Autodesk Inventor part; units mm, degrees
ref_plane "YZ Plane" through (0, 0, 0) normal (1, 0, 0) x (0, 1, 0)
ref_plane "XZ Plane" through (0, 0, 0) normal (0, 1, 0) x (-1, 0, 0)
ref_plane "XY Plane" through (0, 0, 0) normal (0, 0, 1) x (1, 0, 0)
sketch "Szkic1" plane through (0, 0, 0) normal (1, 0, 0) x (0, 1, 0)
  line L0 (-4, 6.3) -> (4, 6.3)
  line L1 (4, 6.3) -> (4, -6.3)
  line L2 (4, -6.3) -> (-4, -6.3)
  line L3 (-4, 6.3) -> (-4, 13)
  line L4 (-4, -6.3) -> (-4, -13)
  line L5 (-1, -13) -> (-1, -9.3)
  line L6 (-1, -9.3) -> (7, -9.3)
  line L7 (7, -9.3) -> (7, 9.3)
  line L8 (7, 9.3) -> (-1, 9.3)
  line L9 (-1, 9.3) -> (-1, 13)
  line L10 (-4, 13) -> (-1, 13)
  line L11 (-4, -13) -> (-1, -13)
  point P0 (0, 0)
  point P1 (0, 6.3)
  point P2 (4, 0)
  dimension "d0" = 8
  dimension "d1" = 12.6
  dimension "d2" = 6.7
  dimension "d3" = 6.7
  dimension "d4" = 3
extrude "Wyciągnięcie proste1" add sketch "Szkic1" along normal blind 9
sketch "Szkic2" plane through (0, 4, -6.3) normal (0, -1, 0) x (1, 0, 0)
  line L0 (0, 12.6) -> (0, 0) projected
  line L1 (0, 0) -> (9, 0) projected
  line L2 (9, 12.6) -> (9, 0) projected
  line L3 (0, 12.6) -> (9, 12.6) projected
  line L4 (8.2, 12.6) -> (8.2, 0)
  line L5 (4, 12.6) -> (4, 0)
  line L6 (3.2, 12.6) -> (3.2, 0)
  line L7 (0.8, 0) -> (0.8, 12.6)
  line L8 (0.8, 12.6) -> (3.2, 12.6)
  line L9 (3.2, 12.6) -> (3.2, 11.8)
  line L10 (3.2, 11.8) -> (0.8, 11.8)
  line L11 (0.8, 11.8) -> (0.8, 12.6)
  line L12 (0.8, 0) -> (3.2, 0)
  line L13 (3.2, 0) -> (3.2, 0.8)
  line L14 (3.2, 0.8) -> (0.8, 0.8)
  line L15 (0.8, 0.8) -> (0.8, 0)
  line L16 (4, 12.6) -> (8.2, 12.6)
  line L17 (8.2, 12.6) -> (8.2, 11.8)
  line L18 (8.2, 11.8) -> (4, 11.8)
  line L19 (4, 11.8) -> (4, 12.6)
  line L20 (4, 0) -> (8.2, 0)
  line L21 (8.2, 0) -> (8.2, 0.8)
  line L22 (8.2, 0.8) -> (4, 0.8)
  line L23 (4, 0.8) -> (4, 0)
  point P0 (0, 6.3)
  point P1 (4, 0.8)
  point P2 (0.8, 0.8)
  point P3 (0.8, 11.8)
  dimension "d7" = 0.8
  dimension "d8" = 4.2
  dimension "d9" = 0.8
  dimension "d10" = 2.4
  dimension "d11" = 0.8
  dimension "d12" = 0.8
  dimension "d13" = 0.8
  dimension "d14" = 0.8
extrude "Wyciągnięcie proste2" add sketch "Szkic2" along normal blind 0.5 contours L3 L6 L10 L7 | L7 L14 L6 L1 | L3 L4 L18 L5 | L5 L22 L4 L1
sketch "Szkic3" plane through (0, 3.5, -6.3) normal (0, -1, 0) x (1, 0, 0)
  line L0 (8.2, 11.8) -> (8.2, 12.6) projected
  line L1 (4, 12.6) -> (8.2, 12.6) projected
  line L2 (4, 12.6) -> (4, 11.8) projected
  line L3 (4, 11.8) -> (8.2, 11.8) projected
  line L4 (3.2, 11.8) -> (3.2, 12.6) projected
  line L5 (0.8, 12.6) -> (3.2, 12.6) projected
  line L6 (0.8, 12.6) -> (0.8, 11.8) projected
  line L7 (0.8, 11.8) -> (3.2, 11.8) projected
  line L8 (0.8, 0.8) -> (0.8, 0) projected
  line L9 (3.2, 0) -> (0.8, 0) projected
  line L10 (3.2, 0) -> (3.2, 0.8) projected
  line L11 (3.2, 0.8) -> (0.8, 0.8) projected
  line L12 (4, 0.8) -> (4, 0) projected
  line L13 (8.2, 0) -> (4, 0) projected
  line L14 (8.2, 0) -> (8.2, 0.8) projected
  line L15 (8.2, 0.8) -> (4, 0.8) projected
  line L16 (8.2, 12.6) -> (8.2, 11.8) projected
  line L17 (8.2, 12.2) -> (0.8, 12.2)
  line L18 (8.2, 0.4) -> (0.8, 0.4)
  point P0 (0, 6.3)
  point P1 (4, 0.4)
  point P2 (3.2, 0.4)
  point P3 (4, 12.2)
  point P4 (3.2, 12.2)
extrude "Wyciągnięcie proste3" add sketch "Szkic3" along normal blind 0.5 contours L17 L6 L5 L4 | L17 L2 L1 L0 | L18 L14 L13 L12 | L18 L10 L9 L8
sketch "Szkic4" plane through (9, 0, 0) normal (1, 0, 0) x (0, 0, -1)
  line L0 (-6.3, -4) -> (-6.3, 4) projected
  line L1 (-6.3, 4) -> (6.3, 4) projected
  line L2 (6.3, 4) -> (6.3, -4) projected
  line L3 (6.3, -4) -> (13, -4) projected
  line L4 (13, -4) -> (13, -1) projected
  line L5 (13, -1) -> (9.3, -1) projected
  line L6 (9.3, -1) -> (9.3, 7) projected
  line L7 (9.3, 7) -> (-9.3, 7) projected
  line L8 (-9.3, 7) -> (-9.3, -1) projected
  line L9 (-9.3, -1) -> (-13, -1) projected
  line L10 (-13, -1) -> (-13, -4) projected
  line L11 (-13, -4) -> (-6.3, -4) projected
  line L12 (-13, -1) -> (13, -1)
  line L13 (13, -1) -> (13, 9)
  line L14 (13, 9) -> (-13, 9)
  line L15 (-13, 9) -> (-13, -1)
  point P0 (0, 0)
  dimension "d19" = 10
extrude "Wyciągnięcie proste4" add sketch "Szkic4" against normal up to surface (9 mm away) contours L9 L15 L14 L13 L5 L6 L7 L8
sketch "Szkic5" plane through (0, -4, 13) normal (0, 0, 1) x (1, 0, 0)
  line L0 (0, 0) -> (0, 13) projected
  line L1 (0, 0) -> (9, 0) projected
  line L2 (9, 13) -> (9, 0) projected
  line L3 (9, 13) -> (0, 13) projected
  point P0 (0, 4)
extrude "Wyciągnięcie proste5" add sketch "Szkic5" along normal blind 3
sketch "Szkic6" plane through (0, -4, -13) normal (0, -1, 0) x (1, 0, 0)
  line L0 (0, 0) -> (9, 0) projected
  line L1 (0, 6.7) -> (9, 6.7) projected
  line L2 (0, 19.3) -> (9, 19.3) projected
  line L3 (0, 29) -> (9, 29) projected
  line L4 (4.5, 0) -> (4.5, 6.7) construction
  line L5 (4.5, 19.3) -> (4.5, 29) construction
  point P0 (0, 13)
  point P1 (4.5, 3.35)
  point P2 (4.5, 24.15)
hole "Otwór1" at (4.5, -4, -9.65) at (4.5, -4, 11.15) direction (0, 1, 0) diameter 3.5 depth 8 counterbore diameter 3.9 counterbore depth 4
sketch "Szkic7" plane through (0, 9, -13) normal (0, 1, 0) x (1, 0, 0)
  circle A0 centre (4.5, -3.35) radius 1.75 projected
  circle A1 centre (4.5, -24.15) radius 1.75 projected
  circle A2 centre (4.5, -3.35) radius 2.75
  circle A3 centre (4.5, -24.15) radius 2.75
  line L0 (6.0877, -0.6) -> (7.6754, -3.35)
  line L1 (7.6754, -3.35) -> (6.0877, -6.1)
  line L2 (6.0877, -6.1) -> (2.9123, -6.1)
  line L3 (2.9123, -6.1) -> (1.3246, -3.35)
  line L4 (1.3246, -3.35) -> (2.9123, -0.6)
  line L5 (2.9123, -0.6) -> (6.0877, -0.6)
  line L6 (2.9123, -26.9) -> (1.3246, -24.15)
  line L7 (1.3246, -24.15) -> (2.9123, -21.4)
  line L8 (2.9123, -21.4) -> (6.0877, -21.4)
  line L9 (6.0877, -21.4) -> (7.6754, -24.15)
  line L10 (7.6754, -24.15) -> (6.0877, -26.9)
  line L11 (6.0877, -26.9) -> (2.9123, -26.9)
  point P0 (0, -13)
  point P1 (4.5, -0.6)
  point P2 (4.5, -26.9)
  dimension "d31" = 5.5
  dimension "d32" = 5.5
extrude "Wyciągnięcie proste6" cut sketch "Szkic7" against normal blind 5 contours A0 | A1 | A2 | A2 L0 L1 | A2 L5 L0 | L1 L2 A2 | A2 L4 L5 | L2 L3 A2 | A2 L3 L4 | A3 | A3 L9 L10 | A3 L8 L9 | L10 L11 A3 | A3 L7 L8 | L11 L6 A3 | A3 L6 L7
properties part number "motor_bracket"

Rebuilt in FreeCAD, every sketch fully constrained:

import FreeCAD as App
import Part
import Sketcher

V = App.Vector
Q = App.Units.Quantity

doc = App.newDocument("Part")
params = doc.addObject("Spreadsheet::Sheet", "Params")
for row, (alias, value) in enumerate([
    ("sketch1_width", "8 mm"),
    ("sketch1_width2", "3 mm"),
    ("sketch1_height", "6.7 mm"),
    ("sketch1_height2", "12.6 mm"),
    ("pad1_length", "9 mm"),
    ("sketch2_width", "2.4 mm"),
    ("sketch2_width2", "4.2 mm"),
    ("sketch2_height", "0.8 mm"),
    ("pad2_length", "0.5 mm"),
    ("sketch3_width", "2.4 mm"),
    ("sketch3_width2", "4.2 mm"),
    ("sketch3_height", "0.4 mm"),
    ("pad3_length", "0.5 mm"),
    ("sketch4_width", "10 mm"),
    ("sketch4_width2", "8 mm"),
    ("sketch4_height", "26 mm"),
    ("sketch4_height2", "3.7 mm"),
    ("pad4_length", "9 mm"),
    ("sketch5_width", "9 mm"),
    ("sketch5_height", "13 mm"),
    ("pad5_length", "3 mm"),
    ("sketch6_diameter", "3.5 mm"),
    ("hole_diameter", "3.5 mm"),
    ("hole_depth", "8 mm"),
    ("hole_cbore_diameter", "3.9 mm"),
    ("hole_cbore_depth", "4 mm"),
    ("pocket1_length", "5 mm"),
], start=1):
    params.set(f"A{row}", alias)
    params.set(f"B{row}", "=" + value)
    params.setAlias(f"B{row}", alias)

body = doc.addObject("PartDesign::Body", "Body")

sketch1 = doc.addObject("Sketcher::SketchObject", "Sketch")
body.addObject(sketch1)
sketch1.AttachmentSupport = (doc.YZ_Plane, [""])
sketch1.MapMode = "FlatFace"
sketch1.addGeometry([
    Part.LineSegment(V(-4, 13, 0), V(-4, 6.3, 0)),
    Part.LineSegment(V(-4, 6.3, 0), V(4, 6.3, 0)),
    Part.LineSegment(V(4, 6.3, 0), V(4, -6.3, 0)),
    Part.LineSegment(V(4, -6.3, 0), V(-4, -6.3, 0)),
    Part.LineSegment(V(-4, -6.3, 0), V(-4, -13, 0)),
    Part.LineSegment(V(-4, -13, 0), V(-1, -13, 0)),
    Part.LineSegment(V(-1, -13, 0), V(-1, -9.3, 0)),
    Part.LineSegment(V(-1, -9.3, 0), V(7, -9.3, 0)),
    Part.LineSegment(V(7, -9.3, 0), V(7, 9.3, 0)),
    Part.LineSegment(V(7, 9.3, 0), V(-1, 9.3, 0)),
    Part.LineSegment(V(-1, 9.3, 0), V(-1, 13, 0)),
    Part.LineSegment(V(-1, 13, 0), V(-4, 13, 0)),
], False)
sketch1.addConstraint([
    Sketcher.Constraint("Coincident", 0, 2, 1, 1),
    Sketcher.Constraint("Coincident", 1, 2, 2, 1),
    Sketcher.Constraint("Coincident", 2, 2, 3, 1),
    Sketcher.Constraint("Coincident", 3, 2, 4, 1),
    Sketcher.Constraint("Coincident", 4, 2, 5, 1),
    Sketcher.Constraint("Coincident", 5, 2, 6, 1),
    Sketcher.Constraint("Coincident", 6, 2, 7, 1),
    Sketcher.Constraint("Coincident", 7, 2, 8, 1),
    Sketcher.Constraint("Coincident", 8, 2, 9, 1),
    Sketcher.Constraint("Coincident", 9, 2, 10, 1),
    Sketcher.Constraint("Coincident", 10, 2, 11, 1),
    Sketcher.Constraint("Coincident", 11, 2, 0, 1),
    Sketcher.Constraint("Vertical", 0),
    Sketcher.Constraint("Horizontal", 1),
    Sketcher.Constraint("Vertical", 2),
    Sketcher.Constraint("Horizontal", 3),
    Sketcher.Constraint("Vertical", 4),
    Sketcher.Constraint("Horizontal", 5),
    Sketcher.Constraint("Vertical", 6),
    Sketcher.Constraint("Horizontal", 7),
    Sketcher.Constraint("Vertical", 8),
    Sketcher.Constraint("Horizontal", 9),
    Sketcher.Constraint("Vertical", 10),
    Sketcher.Constraint("Horizontal", 11),
    Sketcher.Constraint("Symmetric", 0, 2, 2, 2, -1, 1),
    Sketcher.Constraint("Symmetric", 6, 2, 9, 2, -1),
    Sketcher.Constraint("Symmetric", 4, 2, 11, 2, -1),
    Sketcher.Constraint("Equal", 3, 7),
    Sketcher.Constraint("DistanceX", 1, 1, 1, 2, Q("8 mm")),
    Sketcher.Constraint("DistanceX", 5, 1, 5, 2, Q("3 mm")),
    Sketcher.Constraint("DistanceY", 0, 2, 0, 1, Q("6.7 mm")),
    Sketcher.Constraint("DistanceY", 2, 2, 2, 1, Q("12.6 mm")),
    Sketcher.Constraint("DistanceY", 6, 2, 3, 2, Q("3 mm")),
])
sketch1.setExpression("Constraints[28]", "Params.sketch1_width")
sketch1.setExpression("Constraints[29]", "Params.sketch1_width2")
sketch1.setExpression("Constraints[30]", "Params.sketch1_height")
sketch1.setExpression("Constraints[31]", "Params.sketch1_height2")
pad1 = doc.addObject("PartDesign::Pad", "Pad")
body.addObject(pad1)
pad1.Profile = sketch1
pad1.setExpression("Length", "Params.pad1_length")

sketch2 = doc.addObject("Sketcher::SketchObject", "Sketch001")
body.addObject(sketch2)
sketch2.AttachmentSupport = (doc.XZ_Plane, [""])
sketch2.MapMode = "FlatFace"
sketch2.AttachmentOffset = App.Placement(V(0, 0, -4), App.Rotation())
sketch2.addGeometry([
    Part.LineSegment(V(3.2, 6.3, 0), V(0.8, 6.3, 0)),
    Part.LineSegment(V(0.8, 6.3, 0), V(0.8, 5.5, 0)),
    Part.LineSegment(V(0.8, 5.5, 0), V(3.2, 5.5, 0)),
    Part.LineSegment(V(3.2, 5.5, 0), V(3.2, 6.3, 0)),
    Part.LineSegment(V(0.8, -5.5, 0), V(0.8, -6.3, 0)),
    Part.LineSegment(V(0.8, -6.3, 0), V(3.2, -6.3, 0)),
    Part.LineSegment(V(3.2, -6.3, 0), V(3.2, -5.5, 0)),
    Part.LineSegment(V(3.2, -5.5, 0), V(0.8, -5.5, 0)),
    Part.LineSegment(V(8.2, 6.3, 0), V(4, 6.3, 0)),
    Part.LineSegment(V(4, 6.3, 0), V(4, 5.5, 0)),
    Part.LineSegment(V(4, 5.5, 0), V(8.2, 5.5, 0)),
    Part.LineSegment(V(8.2, 5.5, 0), V(8.2, 6.3, 0)),
    Part.LineSegment(V(4, -5.5, 0), V(4, -6.3, 0)),
    Part.LineSegment(V(4, -6.3, 0), V(8.2, -6.3, 0)),
    Part.LineSegment(V(8.2, -6.3, 0), V(8.2, -5.5, 0)),
    Part.LineSegment(V(8.2, -5.5, 0), V(4, -5.5, 0)),
], False)
sketch2.addConstraint([
    Sketcher.Constraint("Coincident", 0, 2, 1, 1),
    Sketcher.Constraint("Coincident", 1, 2, 2, 1),
    Sketcher.Constraint("Coincident", 2, 2, 3, 1),
    Sketcher.Constraint("Coincident", 3, 2, 0, 1),
    Sketcher.Constraint("Coincident", 4, 2, 5, 1),
    Sketcher.Constraint("Coincident", 5, 2, 6, 1),
    Sketcher.Constraint("Coincident", 6, 2, 7, 1),
    Sketcher.Constraint("Coincident", 7, 2, 4, 1),
    Sketcher.Constraint("Coincident", 8, 2, 9, 1),
    Sketcher.Constraint("Coincident", 9, 2, 10, 1),
    Sketcher.Constraint("Coincident", 10, 2, 11, 1),
    Sketcher.Constraint("Coincident", 11, 2, 8, 1),
    Sketcher.Constraint("Coincident", 12, 2, 13, 1),
    Sketcher.Constraint("Coincident", 13, 2, 14, 1),
    Sketcher.Constraint("Coincident", 14, 2, 15, 1),
    Sketcher.Constraint("Coincident", 15, 2, 12, 1),
    Sketcher.Constraint("Horizontal", 0),
    Sketcher.Constraint("Vertical", 1),
    Sketcher.Constraint("Horizontal", 2),
    Sketcher.Constraint("Vertical", 3),
    Sketcher.Constraint("Vertical", 4),
    Sketcher.Constraint("Horizontal", 5),
    Sketcher.Constraint("Vertical", 6),
    Sketcher.Constraint("Horizontal", 7),
    Sketcher.Constraint("Horizontal", 8),
    Sketcher.Constraint("Vertical", 9),
    Sketcher.Constraint("Horizontal", 10),
    Sketcher.Constraint("Vertical", 11),
    Sketcher.Constraint("Vertical", 12),
    Sketcher.Constraint("Horizontal", 13),
    Sketcher.Constraint("Vertical", 14),
    Sketcher.Constraint("Horizontal", 15),
    Sketcher.Constraint("Symmetric", 0, 2, 4, 2, -1),
    Sketcher.Constraint("Symmetric", 2, 2, 6, 2, -1),
    Sketcher.Constraint("Symmetric", 8, 2, 12, 2, -1),
    Sketcher.Constraint("Symmetric", 10, 2, 14, 2, -1),
    Sketcher.Constraint("Horizontal", 3, 2, 8, 2),
    Sketcher.Constraint("Horizontal", 2, 2, 9, 2),
    Sketcher.Constraint("DistanceX", 0, 2, 0, 1, Q("2.4 mm")),
    Sketcher.Constraint("DistanceX", 8, 2, 8, 1, Q("4.2 mm")),
    Sketcher.Constraint("DistanceY", 1, 2, 1, 1, Q("0.8 mm")),
    Sketcher.Constraint("DistanceX", -1, 1, 0, 2, Q("0.8 mm")),
    Sketcher.Constraint("DistanceX", 3, 2, 8, 2, Q("0.8 mm")),
    Sketcher.Constraint("DistanceY", 6, 2, 2, 2, Q("11 mm")),
])
sketch2.setExpression("Constraints[38]", "Params.sketch2_width")
sketch2.setExpression("Constraints[39]", "Params.sketch2_width2")
sketch2.setExpression("Constraints[40]", "Params.sketch2_height")
pad2 = doc.addObject("PartDesign::Pad", "Pad001")
body.addObject(pad2)
pad2.Profile = sketch2
pad2.setExpression("Length", "Params.pad2_length")

sketch3 = doc.addObject("Sketcher::SketchObject", "Sketch002")
body.addObject(sketch3)
sketch3.AttachmentSupport = (doc.XZ_Plane, [""])
sketch3.MapMode = "FlatFace"
sketch3.AttachmentOffset = App.Placement(V(0, 0, -3.5), App.Rotation())
sketch3.addGeometry([
    Part.LineSegment(V(0.8, 5.9, 0), V(3.2, 5.9, 0)),
    Part.LineSegment(V(3.2, 5.9, 0), V(3.2, 6.3, 0)),
    Part.LineSegment(V(3.2, 6.3, 0), V(0.8, 6.3, 0)),
    Part.LineSegment(V(0.8, 6.3, 0), V(0.8, 5.9, 0)),
    Part.LineSegment(V(4, 5.9, 0), V(8.2, 5.9, 0)),
    Part.LineSegment(V(8.2, 5.9, 0), V(8.2, 6.3, 0)),
    Part.LineSegment(V(8.2, 6.3, 0), V(4, 6.3, 0)),
    Part.LineSegment(V(4, 6.3, 0), V(4, 5.9, 0)),
    Part.LineSegment(V(8.2, -5.9, 0), V(4, -5.9, 0)),
    Part.LineSegment(V(4, -5.9, 0), V(4, -6.3, 0)),
    Part.LineSegment(V(4, -6.3, 0), V(8.2, -6.3, 0)),
    Part.LineSegment(V(8.2, -6.3, 0), V(8.2, -5.9, 0)),
    Part.LineSegment(V(3.2, -5.9, 0), V(0.8, -5.9, 0)),
    Part.LineSegment(V(0.8, -5.9, 0), V(0.8, -6.3, 0)),
    Part.LineSegment(V(0.8, -6.3, 0), V(3.2, -6.3, 0)),
    Part.LineSegment(V(3.2, -6.3, 0), V(3.2, -5.9, 0)),
], False)
sketch3.addConstraint([
    Sketcher.Constraint("Coincident", 0, 2, 1, 1),
    Sketcher.Constraint("Coincident", 1, 2, 2, 1),
    Sketcher.Constraint("Coincident", 2, 2, 3, 1),
    Sketcher.Constraint("Coincident", 3, 2, 0, 1),
    Sketcher.Constraint("Coincident", 4, 2, 5, 1),
    Sketcher.Constraint("Coincident", 5, 2, 6, 1),
    Sketcher.Constraint("Coincident", 6, 2, 7, 1),
    Sketcher.Constraint("Coincident", 7, 2, 4, 1),
    Sketcher.Constraint("Coincident", 8, 2, 9, 1),
    Sketcher.Constraint("Coincident", 9, 2, 10, 1),
    Sketcher.Constraint("Coincident", 10, 2, 11, 1),
    Sketcher.Constraint("Coincident", 11, 2, 8, 1),
    Sketcher.Constraint("Coincident", 12, 2, 13, 1),
    Sketcher.Constraint("Coincident", 13, 2, 14, 1),
    Sketcher.Constraint("Coincident", 14, 2, 15, 1),
    Sketcher.Constraint("Coincident", 15, 2, 12, 1),
    Sketcher.Constraint("Horizontal", 0),
    Sketcher.Constraint("Vertical", 1),
    Sketcher.Constraint("Horizontal", 2),
    Sketcher.Constraint("Vertical", 3),
    Sketcher.Constraint("Horizontal", 4),
    Sketcher.Constraint("Vertical", 5),
    Sketcher.Constraint("Horizontal", 6),
    Sketcher.Constraint("Vertical", 7),
    Sketcher.Constraint("Horizontal", 8),
    Sketcher.Constraint("Vertical", 9),
    Sketcher.Constraint("Horizontal", 10),
    Sketcher.Constraint("Vertical", 11),
    Sketcher.Constraint("Horizontal", 12),
    Sketcher.Constraint("Vertical", 13),
    Sketcher.Constraint("Horizontal", 14),
    Sketcher.Constraint("Vertical", 15),
    Sketcher.Constraint("Symmetric", 7, 2, 8, 2, -1),
    Sketcher.Constraint("Symmetric", 5, 2, 10, 2, -1),
    Sketcher.Constraint("Symmetric", 3, 2, 12, 2, -1),
    Sketcher.Constraint("Symmetric", 1, 2, 14, 2, -1),
    Sketcher.Constraint("Horizontal", 3, 2, 4, 2),
    Sketcher.Constraint("Horizontal", 2, 2, 5, 2),
    Sketcher.Constraint("DistanceX", 0, 1, 0, 2, Q("2.4 mm")),
    Sketcher.Constraint("DistanceX", 4, 1, 4, 2, Q("4.2 mm")),
    Sketcher.Constraint("DistanceY", 1, 1, 1, 2, Q("0.4 mm")),
    Sketcher.Constraint("DistanceX", -1, 1, 6, 2, Q("4 mm")),
    Sketcher.Constraint("DistanceX", 0, 2, 4, 2, Q("5 mm")),
    Sketcher.Constraint("DistanceY", -1, 1, 0, 2, Q("5.9 mm")),
])
sketch3.setExpression("Constraints[38]", "Params.sketch3_width")
sketch3.setExpression("Constraints[39]", "Params.sketch3_width2")
sketch3.setExpression("Constraints[40]", "Params.sketch3_height")
pad3 = doc.addObject("PartDesign::Pad", "Pad002")
body.addObject(pad3)
pad3.Profile = sketch3
pad3.setExpression("Length", "Params.pad3_length")

sketch4 = doc.addObject("Sketcher::SketchObject", "Sketch003")
body.addObject(sketch4)
sketch4.AttachmentSupport = (doc.YZ_Plane, [""])
sketch4.MapMode = "FlatFace"
sketch4.AttachmentOffset = App.Placement(V(0, 0, 9), App.Rotation())
sketch4.addGeometry([
    Part.LineSegment(V(-1, 13, 0), V(-1, 9.3, 0)),
    Part.LineSegment(V(-1, 9.3, 0), V(7, 9.3, 0)),
    Part.LineSegment(V(7, 9.3, 0), V(7, -9.3, 0)),
    Part.LineSegment(V(7, -9.3, 0), V(-1, -9.3, 0)),
    Part.LineSegment(V(-1, -9.3, 0), V(-1, -13, 0)),
    Part.LineSegment(V(-1, -13, 0), V(9, -13, 0)),
    Part.LineSegment(V(9, -13, 0), V(9, 13, 0)),
    Part.LineSegment(V(9, 13, 0), V(-1, 13, 0)),
], False)
sketch4.addConstraint([
    Sketcher.Constraint("Coincident", 0, 2, 1, 1),
    Sketcher.Constraint("Coincident", 1, 2, 2, 1),
    Sketcher.Constraint("Coincident", 2, 2, 3, 1),
    Sketcher.Constraint("Coincident", 3, 2, 4, 1),
    Sketcher.Constraint("Coincident", 4, 2, 5, 1),
    Sketcher.Constraint("Coincident", 5, 2, 6, 1),
    Sketcher.Constraint("Coincident", 6, 2, 7, 1),
    Sketcher.Constraint("Coincident", 7, 2, 0, 1),
    Sketcher.Constraint("Vertical", 0),
    Sketcher.Constraint("Horizontal", 1),
    Sketcher.Constraint("Vertical", 2),
    Sketcher.Constraint("Horizontal", 3),
    Sketcher.Constraint("Vertical", 4),
    Sketcher.Constraint("Horizontal", 5),
    Sketcher.Constraint("Vertical", 6),
    Sketcher.Constraint("Horizontal", 7),
    Sketcher.Constraint("Symmetric", 0, 2, 3, 2, -1),
    Sketcher.Constraint("Equal", 0, 4),
    Sketcher.Constraint("DistanceX", 5, 1, 5, 2, Q("10 mm")),
    Sketcher.Constraint("DistanceX", 1, 1, 1, 2, Q("8 mm")),
    Sketcher.Constraint("DistanceY", 6, 1, 6, 2, Q("26 mm")),
    Sketcher.Constraint("DistanceY", 0, 2, 0, 1, Q("3.7 mm")),
    Sketcher.Constraint("DistanceX", 0, 2, -1, 1, Q("1 mm")),
])
sketch4.setExpression("Constraints[18]", "Params.sketch4_width")
sketch4.setExpression("Constraints[19]", "Params.sketch4_width2")
sketch4.setExpression("Constraints[20]", "Params.sketch4_height")
sketch4.setExpression("Constraints[21]", "Params.sketch4_height2")
pad4 = doc.addObject("PartDesign::Pad", "Pad003")
body.addObject(pad4)
pad4.Profile = sketch4
pad4.setExpression("Length", "Params.pad4_length")
pad4.Reversed = True

sketch5 = doc.addObject("Sketcher::SketchObject", "Sketch004")
body.addObject(sketch5)
sketch5.AttachmentSupport = (doc.XY_Plane, [""])
sketch5.MapMode = "FlatFace"
sketch5.AttachmentOffset = App.Placement(V(0, 0, 13), App.Rotation())
sketch5.addGeometry([
    Part.LineSegment(V(0, 9, 0), V(0, -4, 0)),
    Part.LineSegment(V(0, -4, 0), V(9, -4, 0)),
    Part.LineSegment(V(9, -4, 0), V(9, 9, 0)),
    Part.LineSegment(V(9, 9, 0), V(0, 9, 0)),
], False)
sketch5.addConstraint([
    Sketcher.Constraint("Coincident", 0, 2, 1, 1),
    Sketcher.Constraint("Coincident", 1, 2, 2, 1),
    Sketcher.Constraint("Coincident", 2, 2, 3, 1),
    Sketcher.Constraint("Coincident", 3, 2, 0, 1),
    Sketcher.Constraint("Vertical", 0),
    Sketcher.Constraint("Horizontal", 1),
    Sketcher.Constraint("Vertical", 2),
    Sketcher.Constraint("Horizontal", 3),
    Sketcher.Constraint("PointOnObject", 0, 2, -2),
    Sketcher.Constraint("DistanceX", 1, 1, 1, 2, Q("9 mm")),
    Sketcher.Constraint("DistanceY", 0, 2, 0, 1, Q("13 mm")),
    Sketcher.Constraint("DistanceY", 0, 2, -1, 1, Q("4 mm")),
])
sketch5.setExpression("Constraints[9]", "Params.sketch5_width")
sketch5.setExpression("Constraints[10]", "Params.sketch5_height")
pad5 = doc.addObject("PartDesign::Pad", "Pad004")
body.addObject(pad5)
pad5.Profile = sketch5
pad5.setExpression("Length", "Params.pad5_length")

sketch6 = doc.addObject("Sketcher::SketchObject", "Sketch005")
body.addObject(sketch6)
sketch6.AttachmentSupport = (doc.XZ_Plane, [""])
sketch6.MapMode = "FlatFace"
sketch6.AttachmentOffset = App.Placement(V(0, 0, 4), App.Rotation())
sketch6.addGeometry([
    Part.Circle(V(4.5, -9.7, 0), V(0, 0, 1), 1.8),
    Part.Circle(V(4.5, 11.2, 0), V(0, 0, 1), 1.8),
], False)
sketch6.addConstraint([
    Sketcher.Constraint("Equal", 0, 1),
    Sketcher.Constraint("Vertical", 0, 3, 1, 3),
    Sketcher.Constraint("Diameter", 0, Q("3.5 mm")),
    Sketcher.Constraint("DistanceX", -1, 1, 0, 3, Q("4.5 mm")),
    Sketcher.Constraint("DistanceY", 0, 3, 1, 3, Q("20.8 mm")),
    Sketcher.Constraint("DistanceY", 0, 3, -1, 1, Q("9.65 mm")),
])
sketch6.setExpression("Constraints[2]", "Params.sketch6_diameter")
doc.recompute()
hole = doc.addObject("PartDesign::Hole", "Hole")
body.addObject(hole)
hole.Profile = sketch6
hole.ThreadType = "None"
hole.setExpression("Diameter", "Params.hole_diameter")
hole.DepthType = "Dimension"
hole.setExpression("Depth", "Params.hole_depth")
hole.DrillPoint = "Flat"
hole.HoleCutType = "Counterbore"
hole.setExpression("HoleCutDiameter", "Params.hole_cbore_diameter")
hole.setExpression("HoleCutDepth", "Params.hole_cbore_depth")

sketch7 = doc.addObject("Sketcher::SketchObject", "Sketch006")
body.addObject(sketch7)
sketch7.AttachmentSupport = (doc.XZ_Plane, [""])
sketch7.MapMode = "FlatFace"
sketch7.AttachmentOffset = App.Placement(V(0, 0, -9), App.Rotation())
sketch7.addGeometry([
    Part.LineSegment(V(7.7, -9.7, 0), V(6.1, -12.4, 0)),
    Part.LineSegment(V(6.1, -12.4, 0), V(2.9, -12.4, 0)),
    Part.LineSegment(V(2.9, -12.4, 0), V(1.3, -9.7, 0)),
    Part.LineSegment(V(1.3, -9.7, 0), V(2.9, -6.9, 0)),
    Part.LineSegment(V(2.9, -6.9, 0), V(6.1, -6.9, 0)),
    Part.LineSegment(V(6.1, -6.9, 0), V(7.7, -9.7, 0)),
    Part.LineSegment(V(7.7, 11.2, 0), V(6.1, 8.4, 0)),
    Part.LineSegment(V(6.1, 8.4, 0), V(2.9, 8.4, 0)),
    Part.LineSegment(V(2.9, 8.4, 0), V(1.3, 11.2, 0)),
    Part.LineSegment(V(1.3, 11.2, 0), V(2.9, 13.9, 0)),
    Part.LineSegment(V(2.9, 13.9, 0), V(6.1, 13.9, 0)),
    Part.LineSegment(V(6.1, 13.9, 0), V(7.7, 11.2, 0)),
], False)
sketch7.addConstraint([
    Sketcher.Constraint("Coincident", 0, 2, 1, 1),
    Sketcher.Constraint("Coincident", 1, 2, 2, 1),
    Sketcher.Constraint("Coincident", 2, 2, 3, 1),
    Sketcher.Constraint("Coincident", 3, 2, 4, 1),
    Sketcher.Constraint("Coincident", 4, 2, 5, 1),
    Sketcher.Constraint("Coincident", 5, 2, 0, 1),
    Sketcher.Constraint("Coincident", 6, 2, 7, 1),
    Sketcher.Constraint("Coincident", 7, 2, 8, 1),
    Sketcher.Constraint("Coincident", 8, 2, 9, 1),
    Sketcher.Constraint("Coincident", 9, 2, 10, 1),
    Sketcher.Constraint("Coincident", 10, 2, 11, 1),
    Sketcher.Constraint("Coincident", 11, 2, 6, 1),
    Sketcher.Constraint("Horizontal", 1),
    Sketcher.Constraint("Horizontal", 4),
    Sketcher.Constraint("Horizontal", 7),
    Sketcher.Constraint("Horizontal", 10),
    Sketcher.Constraint("Parallel", 0, 3),
    Sketcher.Constraint("Parallel", 2, 5),
    Sketcher.Constraint("Parallel", 3, 6),
    Sketcher.Constraint("Parallel", 5, 8),
    Sketcher.Constraint("Parallel", 6, 9),
    Sketcher.Constraint("Parallel", 8, 11),
    Sketcher.Constraint("Horizontal", 2, 2, 5, 2),
    Sketcher.Constraint("Horizontal", 8, 2, 11, 2),
    Sketcher.Constraint("Vertical", 1, 2, 3, 2),
    Sketcher.Constraint("Vertical", 0, 2, 4, 2),
    Sketcher.Constraint("Vertical", 4, 2, 6, 2),
    Sketcher.Constraint("Vertical", 3, 2, 7, 2),
    Sketcher.Constraint("Vertical", 2, 2, 8, 2),
    Sketcher.Constraint("Vertical", 7, 2, 9, 2),
    Sketcher.Constraint("DistanceY", 1, 2, 3, 2, Q("5.5 mm")),
    Sketcher.Constraint("Angle", 0, Q("-119.9998 deg")),
    Sketcher.Constraint("DistanceY", 0, 2, -1, 1, Q("12.4 mm")),
    Sketcher.Constraint("DistanceY", -1, 1, 6, 2, Q("8.4 mm")),
    Sketcher.Constraint("DistanceX", 1, 2, 1, 1, Q("3.1754 mm")),
    Sketcher.Constraint("DistanceX", -1, 1, 0, 2, Q("6.0877 mm")),
])
pocket1 = doc.addObject("PartDesign::Pocket", "Pocket")
body.addObject(pocket1)
pocket1.Profile = sketch7
pocket1.setExpression("Length", "Params.pocket1_length")
pocket1.Reversed = True

doc.recompute()
